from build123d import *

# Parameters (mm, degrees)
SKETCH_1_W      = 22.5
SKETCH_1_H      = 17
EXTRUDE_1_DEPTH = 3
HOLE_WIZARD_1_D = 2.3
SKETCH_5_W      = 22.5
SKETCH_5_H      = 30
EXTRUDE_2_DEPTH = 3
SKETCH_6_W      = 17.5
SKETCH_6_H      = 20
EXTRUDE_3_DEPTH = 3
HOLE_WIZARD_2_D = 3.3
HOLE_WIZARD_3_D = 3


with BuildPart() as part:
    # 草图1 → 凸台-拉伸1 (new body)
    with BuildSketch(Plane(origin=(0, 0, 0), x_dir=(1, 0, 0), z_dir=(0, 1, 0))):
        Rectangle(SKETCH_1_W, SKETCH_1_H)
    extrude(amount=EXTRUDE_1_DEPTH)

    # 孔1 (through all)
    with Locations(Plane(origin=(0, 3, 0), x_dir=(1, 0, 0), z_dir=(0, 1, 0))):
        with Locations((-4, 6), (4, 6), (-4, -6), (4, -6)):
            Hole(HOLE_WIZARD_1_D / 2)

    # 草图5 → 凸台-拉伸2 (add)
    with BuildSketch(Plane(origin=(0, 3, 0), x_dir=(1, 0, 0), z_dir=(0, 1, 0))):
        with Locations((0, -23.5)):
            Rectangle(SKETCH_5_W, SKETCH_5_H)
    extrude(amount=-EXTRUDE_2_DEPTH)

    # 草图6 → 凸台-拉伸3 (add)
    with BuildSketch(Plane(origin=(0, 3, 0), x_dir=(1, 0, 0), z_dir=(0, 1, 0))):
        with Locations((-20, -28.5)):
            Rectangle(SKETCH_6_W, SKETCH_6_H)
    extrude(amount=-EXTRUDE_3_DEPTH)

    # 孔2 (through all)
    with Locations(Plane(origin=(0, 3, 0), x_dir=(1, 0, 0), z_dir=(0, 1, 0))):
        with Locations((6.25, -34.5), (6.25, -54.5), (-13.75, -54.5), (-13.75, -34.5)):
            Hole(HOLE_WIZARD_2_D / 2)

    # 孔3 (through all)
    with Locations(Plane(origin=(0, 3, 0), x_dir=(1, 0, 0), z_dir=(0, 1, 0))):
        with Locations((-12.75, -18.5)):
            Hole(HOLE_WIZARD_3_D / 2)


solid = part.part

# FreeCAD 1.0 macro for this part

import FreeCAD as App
import Part
import Sketcher
Q = App.Units.Quantity

doc = App.newDocument("Part")
body = doc.addObject("PartDesign::Body", "Body")

# Sketch on XZ plane
sketch1 = body.newObject("Sketcher::SketchObject", "Sketch")
sketch1.AttachmentSupport = (doc.getObject("XZ_Plane"), [""])
sketch1.MapMode = "FlatFace"
sketch1.addGeometry([
    Part.LineSegment(App.Vector(-11, -8, 0), App.Vector(-11, 8, 0)),
    Part.LineSegment(App.Vector(-11, 8, 0), App.Vector(11, 8, 0)),
    Part.LineSegment(App.Vector(11, 8, 0), App.Vector(11, -8, 0)),
    Part.LineSegment(App.Vector(11, -8, 0), App.Vector(-11, -8, 0)),
], False)
sketch1.addConstraint([
    Sketcher.Constraint("Coincident", 0, 2, 1, 1),
    Sketcher.Constraint("Coincident", 1, 2, 2, 1),
    Sketcher.Constraint("Coincident", 2, 2, 3, 1),
    Sketcher.Constraint("Coincident", 3, 2, 0, 1),
    Sketcher.Constraint("Vertical", 0),
    Sketcher.Constraint("Horizontal", 1),
    Sketcher.Constraint("Vertical", 2),
    Sketcher.Constraint("Horizontal", 3),
    Sketcher.Constraint("Symmetric", 0, 2, 2, 2, -1, 1),
    Sketcher.Constraint("DistanceY", 0, 1, 0, 2, Q("17 mm")),
    Sketcher.Constraint("DistanceX", 1, 1, 1, 2, Q("22.5 mm")),
])
pad1 = body.newObject("PartDesign::Pad", "Pad")
pad1.Profile = sketch1
pad1.Length = 3
pad1.Reversed = True

# Sketch on XZ plane
sketch2 = body.newObject("Sketcher::SketchObject", "Sketch001")
sketch2.AttachmentSupport = (doc.getObject("XZ_Plane"), [""])
sketch2.MapMode = "FlatFace"
sketch2.AttachmentOffset = App.Placement(App.Vector(0, 0, -3), App.Rotation())
sketch2.addGeometry([
    Part.Circle(App.Vector(-4, -6, 0), App.Vector(0, 0, 1), 1.1),
    Part.Circle(App.Vector(4, -6, 0), App.Vector(0, 0, 1), 1.1),
    Part.Circle(App.Vector(-4, 6, 0), App.Vector(0, 0, 1), 1.1),
    Part.Circle(App.Vector(4, 6, 0), App.Vector(0, 0, 1), 1.1),
], False)
sketch2.addConstraint([
    Sketcher.Constraint("Equal", 0, 1),
    Sketcher.Constraint("Equal", 1, 2),
    Sketcher.Constraint("Equal", 2, 3),
    Sketcher.Constraint("Symmetric", 1, 3, 2, 3, -1, 1),
    Sketcher.Constraint("Symmetric", 0, 3, 3, 3, -1, 1),
    Sketcher.Constraint("Symmetric", 0, 3, 1, 3, -2),
    Sketcher.Constraint("Diameter", 0, Q("2.3 mm")),
    Sketcher.Constraint("DistanceX", 0, 3, -1, 1, Q("4 mm")),
    Sketcher.Constraint("DistanceY", 0, 3, -1, 1, Q("6 mm")),
])
doc.recompute()
hole = body.newObject("PartDesign::Hole", "Hole")
hole.Profile = sketch2
hole.ThreadType = "None"
hole.Diameter = 2.3
hole.DepthType = "ThroughAll"
hole.Reversed = True

# Sketch on XZ plane
sketch3 = body.newObject("Sketcher::SketchObject", "Sketch002")
sketch3.AttachmentSupport = (doc.getObject("XZ_Plane"), [""])
sketch3.MapMode = "FlatFace"
sketch3.AttachmentOffset = App.Placement(App.Vector(0, 0, -3), App.Rotation())
sketch3.addGeometry([
    Part.LineSegment(App.Vector(-11, 8, 0), App.Vector(-11, 38, 0)),
    Part.LineSegment(App.Vector(-11, 38, 0), App.Vector(11, 38, 0)),
    Part.LineSegment(App.Vector(11, 38, 0), App.Vector(11, 8, 0)),
    Part.LineSegment(App.Vector(11, 8, 0), App.Vector(-11, 8, 0)),
], False)
sketch3.addConstraint([
    Sketcher.Constraint("Coincident", 0, 2, 1, 1),
    Sketcher.Constraint("Coincident", 1, 2, 2, 1),
    Sketcher.Constraint("Coincident", 2, 2, 3, 1),
    Sketcher.Constraint("Coincident", 3, 2, 0, 1),
    Sketcher.Constraint("Vertical", 0),
    Sketcher.Constraint("Horizontal", 1),
    Sketcher.Constraint("Vertical", 2),
    Sketcher.Constraint("Horizontal", 3),
    Sketcher.Constraint("DistanceY", 0, 1, 0, 2, Q("30 mm")),
    Sketcher.Constraint("DistanceX", 1, 1, 1, 2, Q("22.5 mm")),
    Sketcher.Constraint("DistanceY", -1, 1, 0, 2, Q("38.5 mm")),
    Sketcher.Constraint("DistanceX", 0, 2, -1, 1, Q("11.25 mm")),
])
pad2 = body.newObject("PartDesign::Pad", "Pad001")
pad2.Profile = sketch3
pad2.Length = 3

# Sketch on XZ plane
sketch4 = body.newObject("Sketcher::SketchObject", "Sketch003")
sketch4.AttachmentSupport = (doc.getObject("XZ_Plane"), [""])
sketch4.MapMode = "FlatFace"
sketch4.AttachmentOffset = App.Placement(App.Vector(0, 0, -3), App.Rotation())
sketch4.addGeometry([
    Part.LineSegment(App.Vector(-29, 18, 0), App.Vector(-29, 38, 0)),
    Part.LineSegment(App.Vector(-29, 38, 0), App.Vector(-11, 38, 0)),
    Part.LineSegment(App.Vector(-11, 38, 0), App.Vector(-11, 18, 0)),
    Part.LineSegment(App.Vector(-11, 18, 0), App.Vector(-29, 18, 0)),
], False)
sketch4.addConstraint([
    Sketcher.Constraint("Coincident", 0, 2, 1, 1),
    Sketcher.Constraint("Coincident", 1, 2, 2, 1),
    Sketcher.Constraint("Coincident", 2, 2, 3, 1),
    Sketcher.Constraint("Coincident", 3, 2, 0, 1),
    Sketcher.Constraint("Vertical", 0),
    Sketcher.Constraint("Horizontal", 1),
    Sketcher.Constraint("Vertical", 2),
    Sketcher.Constraint("Horizontal", 3),
    Sketcher.Constraint("DistanceY", 0, 1, 0, 2, Q("20 mm")),
    Sketcher.Constraint("DistanceX", 1, 1, 1, 2, Q("17.5 mm")),
    Sketcher.Constraint("DistanceY", -1, 1, 0, 2, Q("38.5 mm")),
    Sketcher.Constraint("DistanceX", 0, 2, -1, 1, Q("28.75 mm")),
])
pad3 = body.newObject("PartDesign::Pad", "Pad002")
pad3.Profile = sketch4
pad3.Length = 3

# Sketch on XZ plane
sketch5 = body.newObject("Sketcher::SketchObject", "Sketch004")
sketch5.AttachmentSupport = (doc.getObject("XZ_Plane"), [""])
sketch5.MapMode = "FlatFace"
sketch5.AttachmentOffset = App.Placement(App.Vector(0, 0, -3), App.Rotation())
sketch5.addGeometry([
    Part.Circle(App.Vector(6.2, 34.5, 0), App.Vector(0, 0, 1), 1.6),
    Part.Circle(App.Vector(6.2, 54.5, 0), App.Vector(0, 0, 1), 1.6),
    Part.Circle(App.Vector(-13.8, 54.5, 0), App.Vector(0, 0, 1), 1.6),
    Part.Circle(App.Vector(-13.8, 34.5, 0), App.Vector(0, 0, 1), 1.6),
], False)
sketch5.addConstraint([
    Sketcher.Constraint("Equal", 0, 1),
    Sketcher.Constraint("Equal", 1, 2),
    Sketcher.Constraint("Equal", 2, 3),
    Sketcher.Constraint("Horizontal", 1, 3, 2, 3),
    Sketcher.Constraint("Horizontal", 0, 3, 3, 3),
    Sketcher.Constraint("Vertical", 0, 3, 1, 3),
    Sketcher.Constraint("Vertical", 2, 3, 3, 3),
    Sketcher.Constraint("Diameter", 0, Q("3.3 mm")),
    Sketcher.Constraint("DistanceY", 0, 3, 1, 3, Q("20 mm")),
    Sketcher.Constraint("DistanceX", 2, 3, 1, 3, Q("20 mm")),
    Sketcher.Constraint("DistanceY", -1, 1, 0, 3, Q("34.5 mm")),
    Sketcher.Constraint("DistanceX", -1, 1, 0, 3, Q("6.25 mm")),
])
doc.recompute()
hole2 = body.newObject("PartDesign::Hole", "Hole001")
hole2.Profile = sketch5
hole2.ThreadType = "None"
hole2.Diameter = 3.3
hole2.DepthType = "ThroughAll"
hole2.Reversed = True

# Sketch on XZ plane
sketch6 = body.newObject("Sketcher::SketchObject", "Sketch005")
sketch6.AttachmentSupport = (doc.getObject("XZ_Plane"), [""])
sketch6.MapMode = "FlatFace"
sketch6.AttachmentOffset = App.Placement(App.Vector(0, 0, -3), App.Rotation())
sketch6.addGeometry(Part.Circle(App.Vector(-12.8, 18.5, 0), App.Vector(0, 0, 1), 1.5), False)
sketch6.addConstraint([
    Sketcher.Constraint("Diameter", 0, Q("3 mm")),
    Sketcher.Constraint("DistanceY", -1, 1, 0, 3, Q("18.5 mm")),
    Sketcher.Constraint("DistanceX", 0, 3, -1, 1, Q("12.75 mm")),
])
doc.recompute()
hole3 = body.newObject("PartDesign::Hole", "Hole002")
hole3.Profile = sketch6
hole3.ThreadType = "None"
hole3.Diameter = 3
hole3.DepthType = "ThroughAll"
hole3.Reversed = True

doc.recompute()
